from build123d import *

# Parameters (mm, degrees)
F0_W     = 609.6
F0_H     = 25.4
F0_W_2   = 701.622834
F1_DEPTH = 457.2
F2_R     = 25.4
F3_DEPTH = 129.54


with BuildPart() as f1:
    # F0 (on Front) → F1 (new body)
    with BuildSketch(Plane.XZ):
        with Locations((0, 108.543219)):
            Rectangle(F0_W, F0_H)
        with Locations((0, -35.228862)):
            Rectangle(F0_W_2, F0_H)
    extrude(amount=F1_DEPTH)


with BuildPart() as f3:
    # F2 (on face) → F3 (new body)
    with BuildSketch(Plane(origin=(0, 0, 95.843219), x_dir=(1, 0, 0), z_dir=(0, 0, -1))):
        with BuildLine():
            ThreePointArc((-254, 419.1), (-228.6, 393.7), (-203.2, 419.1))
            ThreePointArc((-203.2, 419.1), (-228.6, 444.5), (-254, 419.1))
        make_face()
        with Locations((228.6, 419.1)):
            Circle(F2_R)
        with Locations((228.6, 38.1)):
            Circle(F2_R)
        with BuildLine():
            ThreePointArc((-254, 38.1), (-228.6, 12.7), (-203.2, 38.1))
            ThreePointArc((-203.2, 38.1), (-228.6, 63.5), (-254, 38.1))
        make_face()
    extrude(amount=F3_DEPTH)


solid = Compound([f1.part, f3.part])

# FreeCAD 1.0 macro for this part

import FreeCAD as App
import Part
import Sketcher
Q = App.Units.Quantity

doc = App.newDocument("Part")
body = doc.addObject("PartDesign::Body", "Body")
body.AllowCompound = True

sketch1 = doc.addObject("Sketcher::SketchObject", "Sketch")
body.addObject(sketch1)
sketch1.AttachmentSupport = (doc.XZ_Plane, [""])
sketch1.MapMode = "FlatFace"
sketch1.addGeometry([
    Part.LineSegment(App.Vector(-305, 121, 0), App.Vector(-305, 96, 0)),
    Part.LineSegment(App.Vector(-305, 96, 0), App.Vector(305, 96, 0)),
    Part.LineSegment(App.Vector(305, 96, 0), App.Vector(305, 121, 0)),
    Part.LineSegment(App.Vector(305, 121, 0), App.Vector(-305, 121, 0)),
    Part.LineSegment(App.Vector(-351, -23, 0), App.Vector(-351, -48, 0)),
    Part.LineSegment(App.Vector(-351, -48, 0), App.Vector(351, -48, 0)),
    Part.LineSegment(App.Vector(351, -48, 0), App.Vector(351, -23, 0)),
    Part.LineSegment(App.Vector(351, -23, 0), App.Vector(-351, -23, 0)),
], False)
sketch1.addConstraint([
    Sketcher.Constraint("Coincident", 0, 2, 1, 1),
    Sketcher.Constraint("Coincident", 1, 2, 2, 1),
    Sketcher.Constraint("Coincident", 2, 2, 3, 1),
    Sketcher.Constraint("Coincident", 3, 2, 0, 1),
    Sketcher.Constraint("Coincident", 4, 2, 5, 1),
    Sketcher.Constraint("Coincident", 5, 2, 6, 1),
    Sketcher.Constraint("Coincident", 6, 2, 7, 1),
    Sketcher.Constraint("Coincident", 7, 2, 4, 1),
    Sketcher.Constraint("Vertical", 0),
    Sketcher.Constraint("Horizontal", 1),
    Sketcher.Constraint("Vertical", 2),
    Sketcher.Constraint("Horizontal", 3),
    Sketcher.Constraint("Vertical", 4),
    Sketcher.Constraint("Horizontal", 5),
    Sketcher.Constraint("Vertical", 6),
    Sketcher.Constraint("Horizontal", 7),
    Sketcher.Constraint("Equal", 2, 4),
    Sketcher.Constraint("DistanceX", 1, 1, 1, 2, Q("24 in")),
    Sketcher.Constraint("DistanceY", 0, 2, 0, 1, Q("1 in")),
    Sketcher.Constraint("DistanceX", 0, 2, -1, 1, Q("12 in")),
    Sketcher.Constraint("DistanceX", 5, 1, 5, 2, Q("701.622834 mm")),
    Sketcher.Constraint("DistanceY", -1, 1, 0, 2, Q("95.843219 mm")),
    Sketcher.Constraint("DistanceY", 6, 2, -1, 1, Q("22.528862 mm")),
    Sketcher.Constraint("DistanceX", 4, 2, -1, 1, Q("350.811417 mm")),
])
pad1 = doc.addObject("PartDesign::Pad", "Pad")
body.addObject(pad1)
pad1.Profile = sketch1
pad1.Length = Q("18 in")
body2 = doc.addObject("PartDesign::Body", "Body001")
body2.AllowCompound = True

sketch2 = doc.addObject("Sketcher::SketchObject", "Sketch001")
body2.addObject(sketch2)
sketch2.AttachmentSupport = (doc.getObject("XY_Plane001"), [""])
sketch2.MapMode = "FlatFace"
sketch2.AttachmentOffset = App.Placement(App.Vector(0, 0, 95.843219), App.Rotation())
sketch2.addGeometry([
    Part.Circle(App.Vector(-229, -419, 0), App.Vector(0, 0, 1), 25),
    Part.Circle(App.Vector(229, -419, 0), App.Vector(0, 0, 1), 25),
    Part.Circle(App.Vector(229, -38, 0), App.Vector(0, 0, 1), 25),
    Part.Circle(App.Vector(-229, -38, 0), App.Vector(0, 0, 1), 25),
], False)
sketch2.addConstraint([
    Sketcher.Constraint("Equal", 0, 1),
    Sketcher.Constraint("Equal", 1, 2),
    Sketcher.Constraint("Equal", 2, 3),
    Sketcher.Constraint("Symmetric", 0, 3, 1, 3, -2),
    Sketcher.Constraint("Symmetric", 2, 3, 3, 3, -2),
    Sketcher.Constraint("Vertical", 1, 3, 2, 3),
    Sketcher.Constraint("Diameter", 0, Q("2 in")),
    Sketcher.Constraint("DistanceX", 0, 3, -1, 1, Q("9 in")),
    Sketcher.Constraint("DistanceY", 1, 3, 2, 3, Q("15 in")),
    Sketcher.Constraint("DistanceY", 0, 3, -1, 1, Q("16.5 in")),
])
pad2 = doc.addObject("PartDesign::Pad", "Pad001")
body2.addObject(pad2)
pad2.Profile = sketch2
pad2.Length = Q("5.1 in")
pad2.Reversed = True

doc.recompute()
